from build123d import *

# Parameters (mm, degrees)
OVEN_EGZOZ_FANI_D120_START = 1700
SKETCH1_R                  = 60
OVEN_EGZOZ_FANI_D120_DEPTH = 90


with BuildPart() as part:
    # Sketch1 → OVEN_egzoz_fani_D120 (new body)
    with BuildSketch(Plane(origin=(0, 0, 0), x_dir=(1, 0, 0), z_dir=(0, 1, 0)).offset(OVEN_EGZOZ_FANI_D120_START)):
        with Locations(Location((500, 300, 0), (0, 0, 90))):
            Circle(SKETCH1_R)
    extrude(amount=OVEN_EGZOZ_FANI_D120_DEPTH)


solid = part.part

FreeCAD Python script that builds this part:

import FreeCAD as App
import Part
import Sketcher

V = App.Vector
Q = App.Units.Quantity

doc = App.newDocument("Part")
params = doc.addObject("Spreadsheet::Sheet", "Params")
for row, (alias, value) in enumerate([
    ("sketch1_diameter", "120 mm"),
    ("pad1_length", "90 mm"),
], start=1):
    params.set(f"A{row}", alias)
    params.set(f"B{row}", "=" + value)
    params.setAlias(f"B{row}", alias)

body = doc.addObject("PartDesign::Body", "Body")

# Sketch on XZ plane
sketch1 = body.newObject("Sketcher::SketchObject", "Sketch")
sketch1.AttachmentSupport = (doc.getObject("XZ_Plane"), [""])
sketch1.MapMode = "FlatFace"
sketch1.AttachmentOffset = App.Placement(V(0, 0, -1700), App.Rotation())
sketch1.addGeometry(Part.Circle(V(500, -300, 0), V(0, 0, 1), 60), False)
sketch1.addConstraint(Sketcher.Constraint("Diameter", 0, Q("120 mm")))
sketch1.addConstraint(Sketcher.Constraint("DistanceX", -1, 1, 0, 3, Q("500 mm")))
sketch1.addConstraint(Sketcher.Constraint("DistanceY", 0, 3, -1, 1, Q("300 mm")))
sketch1.setExpression("Constraints[0]", "Params.sketch1_diameter")
pad1 = body.newObject("PartDesign::Pad", "Pad")
pad1.Profile = sketch1
pad1.setExpression("Length", "Params.pad1_length")
pad1.Reversed = True

doc.recompute()
